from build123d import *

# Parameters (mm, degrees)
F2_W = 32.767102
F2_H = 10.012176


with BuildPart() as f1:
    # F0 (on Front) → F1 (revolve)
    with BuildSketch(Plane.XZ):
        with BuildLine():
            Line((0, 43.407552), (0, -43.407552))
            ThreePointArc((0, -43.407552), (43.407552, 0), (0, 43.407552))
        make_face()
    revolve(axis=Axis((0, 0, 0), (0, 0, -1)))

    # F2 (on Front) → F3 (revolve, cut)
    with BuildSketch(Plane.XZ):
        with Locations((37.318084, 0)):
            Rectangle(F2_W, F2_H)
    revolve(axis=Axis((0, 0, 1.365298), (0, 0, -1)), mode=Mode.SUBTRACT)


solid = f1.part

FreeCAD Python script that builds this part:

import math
import FreeCAD as App
import Part
import Sketcher
from FreeCAD import Vector

doc = App.newDocument("Part")
body = doc.addObject("PartDesign::Body", "Body")

sketch1 = body.newObject("Sketcher::SketchObject", "Sketch")
sketch1.AttachmentSupport = (doc.getObject("XZ_Plane"), [""])
sketch1.MapMode = "FlatFace"
sketch1.addGeometry([
    Part.LineSegment(Vector(0, 43, 0), Vector(0, -43, 0)),
    Part.ArcOfCircle(Part.Circle(Vector(0, 0, 0), Vector(0, 0, 1), 43), math.radians(-90), math.radians(90)),
], False)
sketch1.addConstraint([
    Sketcher.Constraint("Coincident", 0, 1, 1, 2),
    Sketcher.Constraint("Coincident", 1, 1, 0, 2),
    Sketcher.Constraint("Vertical", 0),
    Sketcher.Constraint("Coincident", 1, 3, -1, 1),
    Sketcher.Constraint("PointOnObject", 0, 1, -2),
    Sketcher.Constraint("Radius", 1, 43.407552),
])
revolution = body.newObject("PartDesign::Revolution", "Revolution")
revolution.Profile = sketch1
revolution.ReferenceAxis = (sketch1, ["V_Axis"])
revolution.Angle = 360

sketch2 = body.newObject("Sketcher::SketchObject", "Sketch001")
sketch2.AttachmentSupport = (doc.getObject("XZ_Plane"), [""])
sketch2.MapMode = "FlatFace"
sketch2.addGeometry([
    Part.LineSegment(Vector(21, 5, 0), Vector(21, -5, 0)),
    Part.LineSegment(Vector(21, -5, 0), Vector(54, -5, 0)),
    Part.LineSegment(Vector(54, -5, 0), Vector(54, 5, 0)),
    Part.LineSegment(Vector(54, 5, 0), Vector(21, 5, 0)),
], False)
sketch2.addConstraint([
    Sketcher.Constraint("Coincident", 0, 2, 1, 1),
    Sketcher.Constraint("Coincident", 1, 2, 2, 1),
    Sketcher.Constraint("Coincident", 2, 2, 3, 1),
    Sketcher.Constraint("Coincident", 3, 2, 0, 1),
    Sketcher.Constraint("Vertical", 0),
    Sketcher.Constraint("Horizontal", 1),
    Sketcher.Constraint("Vertical", 2),
    Sketcher.Constraint("Horizontal", 3),
    Sketcher.Constraint("DistanceX", 1, 1, 1, 2, 32.767102),
    Sketcher.Constraint("DistanceY", 0, 2, 0, 1, 10.012176),
    Sketcher.Constraint("DistanceX", -1, 1, 0, 2, 20.934533),
    Sketcher.Constraint("DistanceY", 0, 2, -1, 1, 5.006088),
])
groove = body.newObject("PartDesign::Groove", "Groove")
groove.Profile = sketch2
groove.ReferenceAxis = (sketch2, ["V_Axis"])
groove.Angle = 360

doc.recompute()
